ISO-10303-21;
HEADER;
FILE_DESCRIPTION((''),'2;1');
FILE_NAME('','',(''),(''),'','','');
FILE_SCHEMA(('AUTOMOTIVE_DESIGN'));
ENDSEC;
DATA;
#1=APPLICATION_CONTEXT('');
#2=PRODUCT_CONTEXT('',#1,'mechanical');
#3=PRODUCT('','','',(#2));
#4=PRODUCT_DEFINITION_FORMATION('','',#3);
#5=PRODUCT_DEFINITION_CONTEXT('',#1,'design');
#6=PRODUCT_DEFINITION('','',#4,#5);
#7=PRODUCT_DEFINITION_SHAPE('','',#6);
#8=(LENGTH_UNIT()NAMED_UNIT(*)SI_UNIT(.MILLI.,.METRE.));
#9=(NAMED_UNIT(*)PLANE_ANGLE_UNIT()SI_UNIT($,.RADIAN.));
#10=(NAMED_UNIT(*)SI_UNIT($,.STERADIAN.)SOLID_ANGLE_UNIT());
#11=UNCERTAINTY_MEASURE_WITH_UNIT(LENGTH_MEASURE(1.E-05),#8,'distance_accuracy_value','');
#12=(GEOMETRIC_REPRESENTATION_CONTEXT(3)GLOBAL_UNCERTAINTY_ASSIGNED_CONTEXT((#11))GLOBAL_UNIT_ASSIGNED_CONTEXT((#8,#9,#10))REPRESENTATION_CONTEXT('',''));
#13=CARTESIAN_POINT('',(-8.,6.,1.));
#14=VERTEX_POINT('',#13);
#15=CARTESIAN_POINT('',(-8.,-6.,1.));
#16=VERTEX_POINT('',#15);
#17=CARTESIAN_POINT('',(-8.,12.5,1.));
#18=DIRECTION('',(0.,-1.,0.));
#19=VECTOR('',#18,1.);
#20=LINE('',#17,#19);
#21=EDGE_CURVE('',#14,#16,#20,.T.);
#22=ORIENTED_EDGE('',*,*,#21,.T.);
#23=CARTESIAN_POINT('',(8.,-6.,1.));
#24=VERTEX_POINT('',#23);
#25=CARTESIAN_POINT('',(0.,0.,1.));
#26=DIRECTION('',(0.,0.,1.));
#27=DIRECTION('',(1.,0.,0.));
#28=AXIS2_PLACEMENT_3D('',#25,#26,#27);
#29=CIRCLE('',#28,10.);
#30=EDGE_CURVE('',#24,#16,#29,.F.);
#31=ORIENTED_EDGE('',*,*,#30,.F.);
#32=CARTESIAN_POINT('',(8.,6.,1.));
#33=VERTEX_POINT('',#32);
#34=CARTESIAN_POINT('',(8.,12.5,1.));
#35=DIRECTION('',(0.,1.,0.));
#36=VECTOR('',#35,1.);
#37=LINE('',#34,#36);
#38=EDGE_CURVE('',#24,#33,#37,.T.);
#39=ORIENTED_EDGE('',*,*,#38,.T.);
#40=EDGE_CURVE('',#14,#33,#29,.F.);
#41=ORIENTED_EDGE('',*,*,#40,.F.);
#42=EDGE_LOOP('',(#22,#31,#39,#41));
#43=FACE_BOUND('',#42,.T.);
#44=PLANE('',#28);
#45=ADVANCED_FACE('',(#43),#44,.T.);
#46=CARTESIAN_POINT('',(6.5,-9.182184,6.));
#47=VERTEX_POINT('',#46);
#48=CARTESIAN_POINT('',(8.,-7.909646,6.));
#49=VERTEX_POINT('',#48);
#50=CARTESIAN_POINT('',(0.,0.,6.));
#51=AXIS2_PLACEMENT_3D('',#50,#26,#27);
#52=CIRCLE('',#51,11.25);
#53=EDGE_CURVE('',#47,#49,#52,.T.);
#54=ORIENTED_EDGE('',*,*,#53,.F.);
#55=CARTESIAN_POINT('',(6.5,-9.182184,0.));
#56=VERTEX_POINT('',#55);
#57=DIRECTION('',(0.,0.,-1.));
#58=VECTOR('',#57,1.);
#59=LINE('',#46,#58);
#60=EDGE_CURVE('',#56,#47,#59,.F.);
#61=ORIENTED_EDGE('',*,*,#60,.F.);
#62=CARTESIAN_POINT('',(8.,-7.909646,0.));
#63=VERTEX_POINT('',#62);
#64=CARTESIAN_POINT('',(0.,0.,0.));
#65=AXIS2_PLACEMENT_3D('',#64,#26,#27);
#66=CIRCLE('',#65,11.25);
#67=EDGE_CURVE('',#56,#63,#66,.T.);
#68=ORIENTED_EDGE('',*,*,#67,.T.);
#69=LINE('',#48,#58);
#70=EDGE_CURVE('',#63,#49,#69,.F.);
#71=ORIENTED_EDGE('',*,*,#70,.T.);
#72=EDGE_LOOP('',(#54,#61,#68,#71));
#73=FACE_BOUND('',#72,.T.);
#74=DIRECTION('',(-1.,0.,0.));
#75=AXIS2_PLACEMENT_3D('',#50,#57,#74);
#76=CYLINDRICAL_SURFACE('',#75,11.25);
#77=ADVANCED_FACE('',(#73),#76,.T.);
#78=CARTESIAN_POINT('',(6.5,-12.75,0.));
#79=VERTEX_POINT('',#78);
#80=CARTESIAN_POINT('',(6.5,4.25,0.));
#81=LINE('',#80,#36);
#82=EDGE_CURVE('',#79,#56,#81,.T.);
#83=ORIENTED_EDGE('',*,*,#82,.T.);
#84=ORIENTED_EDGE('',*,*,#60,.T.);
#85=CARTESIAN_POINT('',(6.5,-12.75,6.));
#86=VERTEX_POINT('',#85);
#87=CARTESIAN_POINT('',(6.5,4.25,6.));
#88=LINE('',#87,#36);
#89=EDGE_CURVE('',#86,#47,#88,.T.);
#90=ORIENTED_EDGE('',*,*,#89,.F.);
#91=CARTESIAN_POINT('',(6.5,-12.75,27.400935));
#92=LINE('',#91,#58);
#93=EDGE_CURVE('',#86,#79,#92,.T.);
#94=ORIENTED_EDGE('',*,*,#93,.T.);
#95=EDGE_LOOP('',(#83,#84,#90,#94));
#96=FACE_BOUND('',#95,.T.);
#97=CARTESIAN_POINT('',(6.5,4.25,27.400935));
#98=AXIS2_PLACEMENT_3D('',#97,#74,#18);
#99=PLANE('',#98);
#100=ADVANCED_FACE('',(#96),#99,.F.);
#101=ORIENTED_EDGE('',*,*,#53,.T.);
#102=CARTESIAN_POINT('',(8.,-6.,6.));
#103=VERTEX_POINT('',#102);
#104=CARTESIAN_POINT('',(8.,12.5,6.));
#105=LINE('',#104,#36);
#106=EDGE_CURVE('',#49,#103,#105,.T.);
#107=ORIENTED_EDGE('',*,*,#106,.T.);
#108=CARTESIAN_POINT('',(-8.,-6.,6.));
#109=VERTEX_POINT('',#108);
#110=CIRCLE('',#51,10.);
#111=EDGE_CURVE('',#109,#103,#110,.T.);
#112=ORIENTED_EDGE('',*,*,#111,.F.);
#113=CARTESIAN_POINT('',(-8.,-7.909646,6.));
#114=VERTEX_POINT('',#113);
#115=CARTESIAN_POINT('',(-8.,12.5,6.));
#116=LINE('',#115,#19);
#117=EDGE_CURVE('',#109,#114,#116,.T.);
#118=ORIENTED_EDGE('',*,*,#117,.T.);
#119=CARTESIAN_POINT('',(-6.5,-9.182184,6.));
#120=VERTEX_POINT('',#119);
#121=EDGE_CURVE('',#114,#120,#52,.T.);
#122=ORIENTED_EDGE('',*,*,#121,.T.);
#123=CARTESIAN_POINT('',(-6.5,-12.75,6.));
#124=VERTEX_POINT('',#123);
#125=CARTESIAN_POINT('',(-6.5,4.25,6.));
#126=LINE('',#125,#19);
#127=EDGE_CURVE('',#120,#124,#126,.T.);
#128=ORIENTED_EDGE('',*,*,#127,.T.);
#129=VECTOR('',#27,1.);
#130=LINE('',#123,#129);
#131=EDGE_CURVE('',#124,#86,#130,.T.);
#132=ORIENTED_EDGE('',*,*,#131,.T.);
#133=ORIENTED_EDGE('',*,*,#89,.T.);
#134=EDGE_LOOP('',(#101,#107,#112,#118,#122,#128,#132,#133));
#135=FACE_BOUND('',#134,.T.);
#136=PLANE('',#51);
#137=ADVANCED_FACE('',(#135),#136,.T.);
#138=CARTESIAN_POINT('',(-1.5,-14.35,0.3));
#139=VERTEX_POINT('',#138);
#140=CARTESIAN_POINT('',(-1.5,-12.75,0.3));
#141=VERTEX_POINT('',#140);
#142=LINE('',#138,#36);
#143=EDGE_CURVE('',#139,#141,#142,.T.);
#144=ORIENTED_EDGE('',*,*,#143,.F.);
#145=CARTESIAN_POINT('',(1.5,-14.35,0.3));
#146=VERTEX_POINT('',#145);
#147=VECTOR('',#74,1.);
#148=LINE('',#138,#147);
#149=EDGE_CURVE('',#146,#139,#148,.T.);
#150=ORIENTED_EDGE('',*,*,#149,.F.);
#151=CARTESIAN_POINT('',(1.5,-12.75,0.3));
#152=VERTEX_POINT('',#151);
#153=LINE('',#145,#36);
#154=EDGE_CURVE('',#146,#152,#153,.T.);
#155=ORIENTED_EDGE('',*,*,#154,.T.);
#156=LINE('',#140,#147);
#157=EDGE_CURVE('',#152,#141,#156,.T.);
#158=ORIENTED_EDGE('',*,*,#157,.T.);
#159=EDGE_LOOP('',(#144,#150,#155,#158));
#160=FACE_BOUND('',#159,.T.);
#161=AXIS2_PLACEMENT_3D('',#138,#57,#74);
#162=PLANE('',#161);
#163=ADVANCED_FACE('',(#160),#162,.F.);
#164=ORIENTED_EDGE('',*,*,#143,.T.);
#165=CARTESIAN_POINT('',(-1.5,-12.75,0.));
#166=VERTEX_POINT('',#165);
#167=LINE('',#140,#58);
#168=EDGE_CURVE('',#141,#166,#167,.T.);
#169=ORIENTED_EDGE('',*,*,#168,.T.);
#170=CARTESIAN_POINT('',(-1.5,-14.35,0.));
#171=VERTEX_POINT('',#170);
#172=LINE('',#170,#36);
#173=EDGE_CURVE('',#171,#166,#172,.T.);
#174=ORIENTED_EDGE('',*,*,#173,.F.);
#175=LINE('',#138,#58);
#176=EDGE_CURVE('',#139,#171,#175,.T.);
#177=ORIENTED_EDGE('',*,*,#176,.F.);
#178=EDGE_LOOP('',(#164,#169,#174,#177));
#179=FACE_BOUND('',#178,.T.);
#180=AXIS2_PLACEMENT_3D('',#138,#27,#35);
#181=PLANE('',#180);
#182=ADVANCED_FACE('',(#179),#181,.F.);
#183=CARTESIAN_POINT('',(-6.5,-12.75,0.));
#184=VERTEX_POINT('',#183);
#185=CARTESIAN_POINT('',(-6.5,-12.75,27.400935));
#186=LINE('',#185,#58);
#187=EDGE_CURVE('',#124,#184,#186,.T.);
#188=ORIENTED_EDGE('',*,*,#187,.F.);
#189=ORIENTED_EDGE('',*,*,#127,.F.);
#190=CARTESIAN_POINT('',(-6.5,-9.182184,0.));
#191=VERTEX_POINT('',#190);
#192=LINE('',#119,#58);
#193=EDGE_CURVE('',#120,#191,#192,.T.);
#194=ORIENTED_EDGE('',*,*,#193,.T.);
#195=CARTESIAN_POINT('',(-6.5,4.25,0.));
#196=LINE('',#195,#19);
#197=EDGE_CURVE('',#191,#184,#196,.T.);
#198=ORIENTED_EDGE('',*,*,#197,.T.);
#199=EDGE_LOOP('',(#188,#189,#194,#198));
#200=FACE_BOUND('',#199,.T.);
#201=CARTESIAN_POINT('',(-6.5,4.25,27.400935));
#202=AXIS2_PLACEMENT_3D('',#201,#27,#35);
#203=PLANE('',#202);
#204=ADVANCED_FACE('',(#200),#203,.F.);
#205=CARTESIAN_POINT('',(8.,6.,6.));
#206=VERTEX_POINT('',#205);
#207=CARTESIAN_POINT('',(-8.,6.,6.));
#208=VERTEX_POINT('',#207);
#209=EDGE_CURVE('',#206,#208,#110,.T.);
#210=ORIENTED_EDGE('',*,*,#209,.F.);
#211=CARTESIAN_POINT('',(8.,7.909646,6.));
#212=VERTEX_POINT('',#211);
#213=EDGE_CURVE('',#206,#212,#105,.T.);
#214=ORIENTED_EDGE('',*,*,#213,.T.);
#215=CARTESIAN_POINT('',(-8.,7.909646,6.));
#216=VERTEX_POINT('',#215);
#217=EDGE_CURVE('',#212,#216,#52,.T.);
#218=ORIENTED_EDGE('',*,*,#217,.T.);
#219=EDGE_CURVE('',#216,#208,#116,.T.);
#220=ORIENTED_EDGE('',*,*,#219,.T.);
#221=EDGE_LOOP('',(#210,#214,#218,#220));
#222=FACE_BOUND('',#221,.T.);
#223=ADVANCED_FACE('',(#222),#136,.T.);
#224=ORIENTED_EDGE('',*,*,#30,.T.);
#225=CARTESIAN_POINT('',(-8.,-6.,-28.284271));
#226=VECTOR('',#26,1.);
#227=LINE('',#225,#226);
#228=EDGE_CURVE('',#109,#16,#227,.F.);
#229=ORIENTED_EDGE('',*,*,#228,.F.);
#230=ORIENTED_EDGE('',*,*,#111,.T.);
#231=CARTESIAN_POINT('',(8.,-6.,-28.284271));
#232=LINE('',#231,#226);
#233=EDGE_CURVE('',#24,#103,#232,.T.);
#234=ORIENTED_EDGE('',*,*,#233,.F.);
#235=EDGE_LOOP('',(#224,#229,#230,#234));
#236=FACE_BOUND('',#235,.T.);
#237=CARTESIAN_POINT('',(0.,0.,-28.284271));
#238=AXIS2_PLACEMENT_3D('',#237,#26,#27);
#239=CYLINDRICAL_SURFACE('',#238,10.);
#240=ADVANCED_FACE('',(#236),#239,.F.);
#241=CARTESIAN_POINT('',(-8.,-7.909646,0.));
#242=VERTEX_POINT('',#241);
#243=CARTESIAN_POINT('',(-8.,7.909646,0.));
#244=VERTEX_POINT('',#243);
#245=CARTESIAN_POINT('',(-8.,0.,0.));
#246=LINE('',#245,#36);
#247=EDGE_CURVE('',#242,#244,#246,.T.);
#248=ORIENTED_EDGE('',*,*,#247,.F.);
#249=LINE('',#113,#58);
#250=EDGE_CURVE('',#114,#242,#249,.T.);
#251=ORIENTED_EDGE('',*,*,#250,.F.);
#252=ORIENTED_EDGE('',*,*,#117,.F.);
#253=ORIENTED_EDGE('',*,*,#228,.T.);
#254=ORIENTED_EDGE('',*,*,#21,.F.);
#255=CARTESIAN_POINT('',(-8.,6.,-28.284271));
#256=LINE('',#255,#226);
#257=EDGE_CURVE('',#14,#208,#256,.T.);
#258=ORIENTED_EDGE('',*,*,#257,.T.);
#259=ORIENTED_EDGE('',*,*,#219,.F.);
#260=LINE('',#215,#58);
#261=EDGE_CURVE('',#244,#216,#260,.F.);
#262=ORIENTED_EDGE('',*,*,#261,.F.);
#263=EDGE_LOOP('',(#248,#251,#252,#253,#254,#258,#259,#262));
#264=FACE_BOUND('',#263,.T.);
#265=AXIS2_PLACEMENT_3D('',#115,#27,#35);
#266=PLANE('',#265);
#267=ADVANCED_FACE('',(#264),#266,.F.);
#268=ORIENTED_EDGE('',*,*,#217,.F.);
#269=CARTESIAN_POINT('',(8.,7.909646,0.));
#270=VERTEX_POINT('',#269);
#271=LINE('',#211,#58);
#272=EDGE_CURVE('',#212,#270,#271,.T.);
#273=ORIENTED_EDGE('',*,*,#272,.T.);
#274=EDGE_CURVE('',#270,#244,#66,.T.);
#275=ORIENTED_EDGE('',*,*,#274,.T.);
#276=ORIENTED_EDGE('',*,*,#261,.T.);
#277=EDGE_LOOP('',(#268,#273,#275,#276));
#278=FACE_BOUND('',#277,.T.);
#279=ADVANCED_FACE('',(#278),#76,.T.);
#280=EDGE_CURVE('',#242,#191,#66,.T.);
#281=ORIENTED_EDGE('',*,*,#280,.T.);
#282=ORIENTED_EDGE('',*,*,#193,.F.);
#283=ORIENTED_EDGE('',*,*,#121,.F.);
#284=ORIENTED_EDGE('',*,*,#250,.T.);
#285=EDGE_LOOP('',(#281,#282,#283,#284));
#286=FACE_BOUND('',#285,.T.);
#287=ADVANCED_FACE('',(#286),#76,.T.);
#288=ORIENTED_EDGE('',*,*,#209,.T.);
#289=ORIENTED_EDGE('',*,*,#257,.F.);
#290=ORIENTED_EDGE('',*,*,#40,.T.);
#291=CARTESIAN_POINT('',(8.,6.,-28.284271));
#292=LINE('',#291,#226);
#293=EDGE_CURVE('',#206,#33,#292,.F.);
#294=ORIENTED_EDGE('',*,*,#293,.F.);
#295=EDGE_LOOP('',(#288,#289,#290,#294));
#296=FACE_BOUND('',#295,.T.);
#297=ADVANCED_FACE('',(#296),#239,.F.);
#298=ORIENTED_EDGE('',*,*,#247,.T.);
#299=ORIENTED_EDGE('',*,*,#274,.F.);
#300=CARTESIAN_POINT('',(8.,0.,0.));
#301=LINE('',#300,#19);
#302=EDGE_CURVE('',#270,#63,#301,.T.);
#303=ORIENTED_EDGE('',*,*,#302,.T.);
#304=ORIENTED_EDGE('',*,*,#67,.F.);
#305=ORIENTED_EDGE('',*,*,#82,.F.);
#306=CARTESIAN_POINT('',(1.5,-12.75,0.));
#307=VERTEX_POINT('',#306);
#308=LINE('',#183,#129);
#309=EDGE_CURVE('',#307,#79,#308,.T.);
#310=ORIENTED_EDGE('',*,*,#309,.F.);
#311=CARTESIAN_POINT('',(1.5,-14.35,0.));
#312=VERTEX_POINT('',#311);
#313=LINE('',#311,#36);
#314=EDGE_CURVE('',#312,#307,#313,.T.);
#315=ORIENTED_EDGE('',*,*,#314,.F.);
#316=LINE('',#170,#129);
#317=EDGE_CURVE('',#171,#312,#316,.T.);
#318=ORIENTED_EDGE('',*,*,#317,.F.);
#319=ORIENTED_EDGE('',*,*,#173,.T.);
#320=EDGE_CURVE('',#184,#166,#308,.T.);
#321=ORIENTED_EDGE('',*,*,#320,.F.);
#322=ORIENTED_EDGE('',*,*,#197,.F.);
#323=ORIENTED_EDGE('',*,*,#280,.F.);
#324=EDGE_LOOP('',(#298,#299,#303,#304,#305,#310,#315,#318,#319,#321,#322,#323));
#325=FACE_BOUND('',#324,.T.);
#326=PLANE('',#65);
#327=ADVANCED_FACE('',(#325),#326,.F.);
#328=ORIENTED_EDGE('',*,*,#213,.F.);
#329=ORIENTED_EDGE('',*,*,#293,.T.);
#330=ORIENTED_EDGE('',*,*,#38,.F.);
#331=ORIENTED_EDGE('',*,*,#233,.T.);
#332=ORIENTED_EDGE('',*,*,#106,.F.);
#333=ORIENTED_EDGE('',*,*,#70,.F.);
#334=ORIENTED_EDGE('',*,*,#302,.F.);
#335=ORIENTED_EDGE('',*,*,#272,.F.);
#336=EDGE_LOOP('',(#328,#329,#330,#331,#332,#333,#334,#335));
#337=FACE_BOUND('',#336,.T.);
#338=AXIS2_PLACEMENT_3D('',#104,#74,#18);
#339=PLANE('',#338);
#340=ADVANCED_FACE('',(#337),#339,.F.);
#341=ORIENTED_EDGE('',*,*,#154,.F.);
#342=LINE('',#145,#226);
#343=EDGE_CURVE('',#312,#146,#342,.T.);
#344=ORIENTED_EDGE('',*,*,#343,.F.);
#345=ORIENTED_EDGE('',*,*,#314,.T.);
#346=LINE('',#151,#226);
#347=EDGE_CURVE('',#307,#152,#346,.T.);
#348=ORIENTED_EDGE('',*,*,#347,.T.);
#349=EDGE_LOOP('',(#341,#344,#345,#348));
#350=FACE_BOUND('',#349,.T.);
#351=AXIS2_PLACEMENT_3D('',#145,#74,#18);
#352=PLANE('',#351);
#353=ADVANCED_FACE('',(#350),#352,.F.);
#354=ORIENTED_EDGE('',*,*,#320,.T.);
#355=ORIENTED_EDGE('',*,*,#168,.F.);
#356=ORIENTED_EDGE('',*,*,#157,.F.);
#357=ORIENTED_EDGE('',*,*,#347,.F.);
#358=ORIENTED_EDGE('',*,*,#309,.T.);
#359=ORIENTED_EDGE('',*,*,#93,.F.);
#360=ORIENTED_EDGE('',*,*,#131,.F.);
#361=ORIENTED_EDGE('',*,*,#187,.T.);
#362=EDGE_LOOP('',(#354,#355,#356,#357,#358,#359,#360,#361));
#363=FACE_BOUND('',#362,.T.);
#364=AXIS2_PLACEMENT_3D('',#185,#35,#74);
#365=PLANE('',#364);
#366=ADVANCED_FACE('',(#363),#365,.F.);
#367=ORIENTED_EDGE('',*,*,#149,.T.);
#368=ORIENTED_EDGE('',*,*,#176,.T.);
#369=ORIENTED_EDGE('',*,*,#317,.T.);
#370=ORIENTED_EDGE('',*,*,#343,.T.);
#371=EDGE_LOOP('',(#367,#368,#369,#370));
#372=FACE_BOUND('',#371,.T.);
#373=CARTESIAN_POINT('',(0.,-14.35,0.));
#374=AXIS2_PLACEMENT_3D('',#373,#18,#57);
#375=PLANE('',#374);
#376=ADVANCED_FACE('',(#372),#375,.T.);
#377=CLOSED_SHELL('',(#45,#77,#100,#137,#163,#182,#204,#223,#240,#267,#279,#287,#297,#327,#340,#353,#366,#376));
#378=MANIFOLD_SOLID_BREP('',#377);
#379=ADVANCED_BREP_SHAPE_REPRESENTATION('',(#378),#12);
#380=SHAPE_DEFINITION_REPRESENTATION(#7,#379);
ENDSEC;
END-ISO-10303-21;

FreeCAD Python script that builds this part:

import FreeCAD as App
import Part
import Sketcher

V = App.Vector
Q = App.Units.Quantity

doc = App.newDocument("Part")
body = doc.addObject("PartDesign::Body", "Body")

# Sketch on XY plane
sketch1 = body.newObject("Sketcher::SketchObject", "Sketch")
sketch1.AttachmentSupport = (doc.getObject("XY_Plane"), [""])
sketch1.MapMode = "FlatFace"
sketch1.addGeometry(Part.Circle(V(0, 0, 0), V(0, 0, 1), 11.25), False)
sketch1.addConstraint([
    Sketcher.Constraint("Coincident", 0, 3, -1, 1),
    Sketcher.Constraint("Diameter", 0, Q("22.5 mm")),
])
pad1 = body.newObject("PartDesign::Pad", "Pad")
pad1.Profile = sketch1
pad1.Length = 6

# Sketch on XY plane
sketch2 = body.newObject("Sketcher::SketchObject", "Sketch001")
sketch2.AttachmentSupport = (doc.getObject("XY_Plane"), [""])
sketch2.MapMode = "FlatFace"
sketch2.addGeometry([
    Part.LineSegment(V(-18, 22.5, 0), V(-18, -22.5, 0)),  # 0
    Part.LineSegment(V(-18, -22.5, 0), V(18, -22.5, 0)),  # 1
    Part.LineSegment(V(18, -22.5, 0), V(18, 22.5, 0)),  # 2
    Part.LineSegment(V(18, 22.5, 0), V(-18, 22.5, 0)),  # 3
    Part.LineSegment(V(8, -12.5, 0), V(-8, -12.5, 0)),  # 4
    Part.LineSegment(V(-8, -12.5, 0), V(-8, 12.5, 0)),  # 5
    Part.LineSegment(V(-8, 12.5, 0), V(8, 12.5, 0)),  # 6
    Part.LineSegment(V(8, 12.5, 0), V(8, -12.5, 0)),  # 7
], False)
sketch2.addConstraint([
    Sketcher.Constraint("Coincident", 0, 2, 1, 1),
    Sketcher.Constraint("Coincident", 1, 2, 2, 1),
    Sketcher.Constraint("Coincident", 2, 2, 3, 1),
    Sketcher.Constraint("Coincident", 3, 2, 0, 1),
    Sketcher.Constraint("Coincident", 4, 2, 5, 1),
    Sketcher.Constraint("Coincident", 5, 2, 6, 1),
    Sketcher.Constraint("Coincident", 6, 2, 7, 1),
    Sketcher.Constraint("Coincident", 7, 2, 4, 1),
    Sketcher.Constraint("Vertical", 0),
    Sketcher.Constraint("Horizontal", 1),
    Sketcher.Constraint("Vertical", 2),
    Sketcher.Constraint("Horizontal", 3),
    Sketcher.Constraint("Horizontal", 4),
    Sketcher.Constraint("Vertical", 5),
    Sketcher.Constraint("Horizontal", 6),
    Sketcher.Constraint("Vertical", 7),
    Sketcher.Constraint("Symmetric", 0, 2, 2, 2, -1, 1),
    Sketcher.Constraint("Symmetric", 4, 2, 6, 2, -1, 1),
    Sketcher.Constraint("DistanceX", 1, 1, 1, 2, Q("36 mm")),
    Sketcher.Constraint("DistanceX", 4, 2, 4, 1, Q("16 mm")),
    Sketcher.Constraint("DistanceY", 0, 2, 0, 1, Q("45 mm")),
    Sketcher.Constraint("DistanceY", 5, 1, 5, 2, Q("25 mm")),
])
pocket1 = body.newObject("PartDesign::Pocket", "Pocket")
pocket1.Profile = sketch2
pocket1.Type = "ThroughAll"
pocket1.Reversed = True

# Sketch on XY plane
sketch3 = body.newObject("Sketcher::SketchObject", "Sketch002")
sketch3.AttachmentSupport = (doc.getObject("XY_Plane"), [""])
sketch3.MapMode = "FlatFace"
sketch3.addGeometry([
    Part.LineSegment(V(-6.5, 4.25, 0), V(-6.5, -12.75, 0)),
    Part.LineSegment(V(-6.5, -12.75, 0), V(6.5, -12.75, 0)),
    Part.LineSegment(V(6.5, -12.75, 0), V(6.5, 4.25, 0)),
    Part.LineSegment(V(6.5, 4.25, 0), V(-6.5, 4.25, 0)),
], False)
sketch3.addConstraint([
    Sketcher.Constraint("Coincident", 0, 2, 1, 1),
    Sketcher.Constraint("Coincident", 1, 2, 2, 1),
    Sketcher.Constraint("Coincident", 2, 2, 3, 1),
    Sketcher.Constraint("Coincident", 3, 2, 0, 1),
    Sketcher.Constraint("Vertical", 0),
    Sketcher.Constraint("Horizontal", 1),
    Sketcher.Constraint("Vertical", 2),
    Sketcher.Constraint("Horizontal", 3),
    Sketcher.Constraint("DistanceX", 1, 1, 1, 2, Q("13 mm")),
    Sketcher.Constraint("DistanceY", 0, 2, 0, 1, Q("17 mm")),
    Sketcher.Constraint("DistanceX", 0, 2, -1, 1, Q("6.5 mm")),
    Sketcher.Constraint("DistanceY", 0, 2, -1, 1, Q("12.75 mm")),
])
pad2 = body.newObject("PartDesign::Pad", "Pad001")
pad2.Profile = sketch3
pad2.Length = 6

# Sketch on XY plane
sketch4 = body.newObject("Sketcher::SketchObject", "Sketch003")
sketch4.AttachmentSupport = (doc.getObject("XY_Plane"), [""])
sketch4.MapMode = "FlatFace"
sketch4.AttachmentOffset = App.Placement(V(0, 0, 6), App.Rotation())
sketch4.addGeometry(Part.Circle(V(0, 0, 0), V(0, 0, 1), 10), False)
sketch4.addConstraint([
    Sketcher.Constraint("Coincident", 0, 3, -1, 1),
    Sketcher.Constraint("Diameter", 0, Q("20 mm")),
])
pocket2 = body.newObject("PartDesign::Pocket", "Pocket001")
pocket2.Profile = sketch4
pocket2.Length = 5

# Sketch on XZ plane
sketch5 = body.newObject("Sketcher::SketchObject", "Sketch004")
sketch5.AttachmentSupport = (doc.getObject("XZ_Plane"), [""])
sketch5.MapMode = "FlatFace"
sketch5.AttachmentOffset = App.Placement(V(0, 0, 12.75), App.Rotation())
sketch5.addGeometry([
    Part.LineSegment(V(-1.5, 0.3, 0), V(-1.5, 0, 0)),
    Part.LineSegment(V(-1.5, 0, 0), V(1.5, 0, 0)),
    Part.LineSegment(V(1.5, 0, 0), V(1.5, 0.3, 0)),
    Part.LineSegment(V(1.5, 0.3, 0), V(-1.5, 0.3, 0)),
], False)
sketch5.addConstraint([
    Sketcher.Constraint("Coincident", 0, 2, 1, 1),
    Sketcher.Constraint("Coincident", 1, 2, 2, 1),
    Sketcher.Constraint("Coincident", 2, 2, 3, 1),
    Sketcher.Constraint("Coincident", 3, 2, 0, 1),
    Sketcher.Constraint("Vertical", 0),
    Sketcher.Constraint("Horizontal", 1),
    Sketcher.Constraint("Vertical", 2),
    Sketcher.Constraint("Horizontal", 3),
    Sketcher.Constraint("Symmetric", 0, 2, 1, 2, -1, 1),
    Sketcher.Constraint("DistanceX", 1, 1, 1, 2, Q("3 mm")),
    Sketcher.Constraint("DistanceY", 0, 2, 0, 1, Q("0.3 mm")),
])
pad3 = body.newObject("PartDesign::Pad", "Pad002")
pad3.Profile = sketch5
pad3.Length = 1.6

doc.recompute()
